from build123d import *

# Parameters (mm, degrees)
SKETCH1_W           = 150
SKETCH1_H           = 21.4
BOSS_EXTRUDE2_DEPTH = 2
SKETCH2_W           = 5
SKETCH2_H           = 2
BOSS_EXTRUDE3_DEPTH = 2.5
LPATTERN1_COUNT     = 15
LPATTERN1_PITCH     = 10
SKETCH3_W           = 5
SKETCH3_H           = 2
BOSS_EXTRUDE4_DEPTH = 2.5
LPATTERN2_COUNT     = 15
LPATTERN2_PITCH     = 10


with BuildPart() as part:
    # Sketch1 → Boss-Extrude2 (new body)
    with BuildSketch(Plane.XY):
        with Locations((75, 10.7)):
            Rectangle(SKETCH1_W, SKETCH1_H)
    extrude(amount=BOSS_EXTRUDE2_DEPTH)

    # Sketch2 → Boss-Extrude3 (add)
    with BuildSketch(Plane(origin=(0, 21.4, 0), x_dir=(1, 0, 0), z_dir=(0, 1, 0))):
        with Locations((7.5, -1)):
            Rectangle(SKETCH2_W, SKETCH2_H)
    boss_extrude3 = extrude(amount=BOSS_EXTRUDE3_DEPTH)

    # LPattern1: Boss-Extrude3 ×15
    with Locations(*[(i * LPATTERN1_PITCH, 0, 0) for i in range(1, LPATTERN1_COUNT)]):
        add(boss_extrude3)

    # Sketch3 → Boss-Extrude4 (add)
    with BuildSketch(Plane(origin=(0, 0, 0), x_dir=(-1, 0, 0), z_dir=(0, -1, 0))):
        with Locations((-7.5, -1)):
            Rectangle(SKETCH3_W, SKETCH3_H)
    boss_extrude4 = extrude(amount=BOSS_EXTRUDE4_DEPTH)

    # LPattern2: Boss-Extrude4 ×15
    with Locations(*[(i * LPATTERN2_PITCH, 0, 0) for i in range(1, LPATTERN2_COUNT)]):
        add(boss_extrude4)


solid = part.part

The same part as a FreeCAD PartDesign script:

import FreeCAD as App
import Part
import Sketcher

V = App.Vector

doc = App.newDocument("Part")
body = doc.addObject("PartDesign::Body", "Body")

sketch1 = body.newObject("Sketcher::SketchObject", "Sketch")
sketch1.AttachmentSupport = (doc.getObject("XY_Plane"), [""])
sketch1.MapMode = "FlatFace"
sketch1.addGeometry([
    Part.LineSegment(V(0, 21.4, 0), V(0, 0, 0)),
    Part.LineSegment(V(0, 0, 0), V(150, 0, 0)),
    Part.LineSegment(V(150, 0, 0), V(150, 21.4, 0)),
    Part.LineSegment(V(150, 21.4, 0), V(0, 21.4, 0)),
], False)
sketch1.addConstraint([
    Sketcher.Constraint("Coincident", 0, 2, 1, 1),
    Sketcher.Constraint("Coincident", 1, 2, 2, 1),
    Sketcher.Constraint("Coincident", 2, 2, 3, 1),
    Sketcher.Constraint("Coincident", 3, 2, 0, 1),
    Sketcher.Constraint("Vertical", 0),
    Sketcher.Constraint("Horizontal", 1),
    Sketcher.Constraint("Vertical", 2),
    Sketcher.Constraint("Horizontal", 3),
    Sketcher.Constraint("Coincident", 0, 2, -1, 1),
    Sketcher.Constraint("DistanceX", 1, 1, 1, 2, 150.0),
    Sketcher.Constraint("DistanceY", 0, 2, 0, 1, 21.4),
])
pad1 = body.newObject("PartDesign::Pad", "Pad")
pad1.Profile = sketch1
pad1.Length = 2

sketch2 = body.newObject("Sketcher::SketchObject", "Sketch001")
sketch2.AttachmentSupport = (doc.getObject("XZ_Plane"), [""])
sketch2.MapMode = "FlatFace"
sketch2.AttachmentOffset = App.Placement(V(0, 0, -21.4), App.Rotation())
sketch2.addGeometry([
    Part.LineSegment(V(5, 0, 0), V(5, 2, 0)),
    Part.LineSegment(V(5, 2, 0), V(10, 2, 0)),
    Part.LineSegment(V(10, 2, 0), V(10, 0, 0)),
    Part.LineSegment(V(10, 0, 0), V(5, 0, 0)),
], False)
sketch2.addConstraint([
    Sketcher.Constraint("Coincident", 0, 2, 1, 1),
    Sketcher.Constraint("Coincident", 1, 2, 2, 1),
    Sketcher.Constraint("Coincident", 2, 2, 3, 1),
    Sketcher.Constraint("Coincident", 3, 2, 0, 1),
    Sketcher.Constraint("Vertical", 0),
    Sketcher.Constraint("Horizontal", 1),
    Sketcher.Constraint("Vertical", 2),
    Sketcher.Constraint("Horizontal", 3),
    Sketcher.Constraint("PointOnObject", 2, 2, -1),
    Sketcher.Constraint("DistanceX", 1, 1, 1, 2, 5.0),
    Sketcher.Constraint("DistanceY", 0, 1, 0, 2, 2.0),
    Sketcher.Constraint("DistanceX", -1, 1, 0, 2, 5.0),
])
pad2 = body.newObject("PartDesign::Pad", "Pad001")
pad2.Profile = sketch2
pad2.Length = 2.5
pad2.Reversed = True
doc.recompute()

linearpattern = body.newObject("PartDesign::LinearPattern", "LinearPattern")
linearpattern.Originals = [pad2]
linearpattern.Direction = (doc.getObject("X_Axis"), [""])
linearpattern.Mode = "offset"
linearpattern.Offset = 10
linearpattern.Occurrences = 15
body.Tip = linearpattern

sketch3 = body.newObject("Sketcher::SketchObject", "Sketch002")
sketch3.AttachmentSupport = (doc.getObject("XZ_Plane"), [""])
sketch3.MapMode = "FlatFace"
sketch3.addGeometry([
    Part.LineSegment(V(10, 0, 0), V(10, 2, 0)),
    Part.LineSegment(V(10, 2, 0), V(5, 2, 0)),
    Part.LineSegment(V(5, 2, 0), V(5, 0, 0)),
    Part.LineSegment(V(5, 0, 0), V(10, 0, 0)),
], False)
sketch3.addConstraint([
    Sketcher.Constraint("Coincident", 0, 2, 1, 1),
    Sketcher.Constraint("Coincident", 1, 2, 2, 1),
    Sketcher.Constraint("Coincident", 2, 2, 3, 1),
    Sketcher.Constraint("Coincident", 3, 2, 0, 1),
    Sketcher.Constraint("Vertical", 0),
    Sketcher.Constraint("Horizontal", 1),
    Sketcher.Constraint("Vertical", 2),
    Sketcher.Constraint("Horizontal", 3),
    Sketcher.Constraint("PointOnObject", 2, 2, -1),
    Sketcher.Constraint("DistanceX", 1, 2, 1, 1, 5.0),
    Sketcher.Constraint("DistanceY", 0, 1, 0, 2, 2.0),
    Sketcher.Constraint("DistanceX", -1, 1, 0, 2, 10.0),
])
pad3 = body.newObject("PartDesign::Pad", "Pad002")
pad3.Profile = sketch3
pad3.Length = 2.5
doc.recompute()

linearpattern2 = body.newObject("PartDesign::LinearPattern", "LinearPattern001")
linearpattern2.Originals = [pad3]
linearpattern2.Direction = (doc.getObject("X_Axis"), [""])
linearpattern2.Mode = "offset"
linearpattern2.Offset = 10
linearpattern2.Occurrences = 15
body.Tip = linearpattern2

doc.recompute()
